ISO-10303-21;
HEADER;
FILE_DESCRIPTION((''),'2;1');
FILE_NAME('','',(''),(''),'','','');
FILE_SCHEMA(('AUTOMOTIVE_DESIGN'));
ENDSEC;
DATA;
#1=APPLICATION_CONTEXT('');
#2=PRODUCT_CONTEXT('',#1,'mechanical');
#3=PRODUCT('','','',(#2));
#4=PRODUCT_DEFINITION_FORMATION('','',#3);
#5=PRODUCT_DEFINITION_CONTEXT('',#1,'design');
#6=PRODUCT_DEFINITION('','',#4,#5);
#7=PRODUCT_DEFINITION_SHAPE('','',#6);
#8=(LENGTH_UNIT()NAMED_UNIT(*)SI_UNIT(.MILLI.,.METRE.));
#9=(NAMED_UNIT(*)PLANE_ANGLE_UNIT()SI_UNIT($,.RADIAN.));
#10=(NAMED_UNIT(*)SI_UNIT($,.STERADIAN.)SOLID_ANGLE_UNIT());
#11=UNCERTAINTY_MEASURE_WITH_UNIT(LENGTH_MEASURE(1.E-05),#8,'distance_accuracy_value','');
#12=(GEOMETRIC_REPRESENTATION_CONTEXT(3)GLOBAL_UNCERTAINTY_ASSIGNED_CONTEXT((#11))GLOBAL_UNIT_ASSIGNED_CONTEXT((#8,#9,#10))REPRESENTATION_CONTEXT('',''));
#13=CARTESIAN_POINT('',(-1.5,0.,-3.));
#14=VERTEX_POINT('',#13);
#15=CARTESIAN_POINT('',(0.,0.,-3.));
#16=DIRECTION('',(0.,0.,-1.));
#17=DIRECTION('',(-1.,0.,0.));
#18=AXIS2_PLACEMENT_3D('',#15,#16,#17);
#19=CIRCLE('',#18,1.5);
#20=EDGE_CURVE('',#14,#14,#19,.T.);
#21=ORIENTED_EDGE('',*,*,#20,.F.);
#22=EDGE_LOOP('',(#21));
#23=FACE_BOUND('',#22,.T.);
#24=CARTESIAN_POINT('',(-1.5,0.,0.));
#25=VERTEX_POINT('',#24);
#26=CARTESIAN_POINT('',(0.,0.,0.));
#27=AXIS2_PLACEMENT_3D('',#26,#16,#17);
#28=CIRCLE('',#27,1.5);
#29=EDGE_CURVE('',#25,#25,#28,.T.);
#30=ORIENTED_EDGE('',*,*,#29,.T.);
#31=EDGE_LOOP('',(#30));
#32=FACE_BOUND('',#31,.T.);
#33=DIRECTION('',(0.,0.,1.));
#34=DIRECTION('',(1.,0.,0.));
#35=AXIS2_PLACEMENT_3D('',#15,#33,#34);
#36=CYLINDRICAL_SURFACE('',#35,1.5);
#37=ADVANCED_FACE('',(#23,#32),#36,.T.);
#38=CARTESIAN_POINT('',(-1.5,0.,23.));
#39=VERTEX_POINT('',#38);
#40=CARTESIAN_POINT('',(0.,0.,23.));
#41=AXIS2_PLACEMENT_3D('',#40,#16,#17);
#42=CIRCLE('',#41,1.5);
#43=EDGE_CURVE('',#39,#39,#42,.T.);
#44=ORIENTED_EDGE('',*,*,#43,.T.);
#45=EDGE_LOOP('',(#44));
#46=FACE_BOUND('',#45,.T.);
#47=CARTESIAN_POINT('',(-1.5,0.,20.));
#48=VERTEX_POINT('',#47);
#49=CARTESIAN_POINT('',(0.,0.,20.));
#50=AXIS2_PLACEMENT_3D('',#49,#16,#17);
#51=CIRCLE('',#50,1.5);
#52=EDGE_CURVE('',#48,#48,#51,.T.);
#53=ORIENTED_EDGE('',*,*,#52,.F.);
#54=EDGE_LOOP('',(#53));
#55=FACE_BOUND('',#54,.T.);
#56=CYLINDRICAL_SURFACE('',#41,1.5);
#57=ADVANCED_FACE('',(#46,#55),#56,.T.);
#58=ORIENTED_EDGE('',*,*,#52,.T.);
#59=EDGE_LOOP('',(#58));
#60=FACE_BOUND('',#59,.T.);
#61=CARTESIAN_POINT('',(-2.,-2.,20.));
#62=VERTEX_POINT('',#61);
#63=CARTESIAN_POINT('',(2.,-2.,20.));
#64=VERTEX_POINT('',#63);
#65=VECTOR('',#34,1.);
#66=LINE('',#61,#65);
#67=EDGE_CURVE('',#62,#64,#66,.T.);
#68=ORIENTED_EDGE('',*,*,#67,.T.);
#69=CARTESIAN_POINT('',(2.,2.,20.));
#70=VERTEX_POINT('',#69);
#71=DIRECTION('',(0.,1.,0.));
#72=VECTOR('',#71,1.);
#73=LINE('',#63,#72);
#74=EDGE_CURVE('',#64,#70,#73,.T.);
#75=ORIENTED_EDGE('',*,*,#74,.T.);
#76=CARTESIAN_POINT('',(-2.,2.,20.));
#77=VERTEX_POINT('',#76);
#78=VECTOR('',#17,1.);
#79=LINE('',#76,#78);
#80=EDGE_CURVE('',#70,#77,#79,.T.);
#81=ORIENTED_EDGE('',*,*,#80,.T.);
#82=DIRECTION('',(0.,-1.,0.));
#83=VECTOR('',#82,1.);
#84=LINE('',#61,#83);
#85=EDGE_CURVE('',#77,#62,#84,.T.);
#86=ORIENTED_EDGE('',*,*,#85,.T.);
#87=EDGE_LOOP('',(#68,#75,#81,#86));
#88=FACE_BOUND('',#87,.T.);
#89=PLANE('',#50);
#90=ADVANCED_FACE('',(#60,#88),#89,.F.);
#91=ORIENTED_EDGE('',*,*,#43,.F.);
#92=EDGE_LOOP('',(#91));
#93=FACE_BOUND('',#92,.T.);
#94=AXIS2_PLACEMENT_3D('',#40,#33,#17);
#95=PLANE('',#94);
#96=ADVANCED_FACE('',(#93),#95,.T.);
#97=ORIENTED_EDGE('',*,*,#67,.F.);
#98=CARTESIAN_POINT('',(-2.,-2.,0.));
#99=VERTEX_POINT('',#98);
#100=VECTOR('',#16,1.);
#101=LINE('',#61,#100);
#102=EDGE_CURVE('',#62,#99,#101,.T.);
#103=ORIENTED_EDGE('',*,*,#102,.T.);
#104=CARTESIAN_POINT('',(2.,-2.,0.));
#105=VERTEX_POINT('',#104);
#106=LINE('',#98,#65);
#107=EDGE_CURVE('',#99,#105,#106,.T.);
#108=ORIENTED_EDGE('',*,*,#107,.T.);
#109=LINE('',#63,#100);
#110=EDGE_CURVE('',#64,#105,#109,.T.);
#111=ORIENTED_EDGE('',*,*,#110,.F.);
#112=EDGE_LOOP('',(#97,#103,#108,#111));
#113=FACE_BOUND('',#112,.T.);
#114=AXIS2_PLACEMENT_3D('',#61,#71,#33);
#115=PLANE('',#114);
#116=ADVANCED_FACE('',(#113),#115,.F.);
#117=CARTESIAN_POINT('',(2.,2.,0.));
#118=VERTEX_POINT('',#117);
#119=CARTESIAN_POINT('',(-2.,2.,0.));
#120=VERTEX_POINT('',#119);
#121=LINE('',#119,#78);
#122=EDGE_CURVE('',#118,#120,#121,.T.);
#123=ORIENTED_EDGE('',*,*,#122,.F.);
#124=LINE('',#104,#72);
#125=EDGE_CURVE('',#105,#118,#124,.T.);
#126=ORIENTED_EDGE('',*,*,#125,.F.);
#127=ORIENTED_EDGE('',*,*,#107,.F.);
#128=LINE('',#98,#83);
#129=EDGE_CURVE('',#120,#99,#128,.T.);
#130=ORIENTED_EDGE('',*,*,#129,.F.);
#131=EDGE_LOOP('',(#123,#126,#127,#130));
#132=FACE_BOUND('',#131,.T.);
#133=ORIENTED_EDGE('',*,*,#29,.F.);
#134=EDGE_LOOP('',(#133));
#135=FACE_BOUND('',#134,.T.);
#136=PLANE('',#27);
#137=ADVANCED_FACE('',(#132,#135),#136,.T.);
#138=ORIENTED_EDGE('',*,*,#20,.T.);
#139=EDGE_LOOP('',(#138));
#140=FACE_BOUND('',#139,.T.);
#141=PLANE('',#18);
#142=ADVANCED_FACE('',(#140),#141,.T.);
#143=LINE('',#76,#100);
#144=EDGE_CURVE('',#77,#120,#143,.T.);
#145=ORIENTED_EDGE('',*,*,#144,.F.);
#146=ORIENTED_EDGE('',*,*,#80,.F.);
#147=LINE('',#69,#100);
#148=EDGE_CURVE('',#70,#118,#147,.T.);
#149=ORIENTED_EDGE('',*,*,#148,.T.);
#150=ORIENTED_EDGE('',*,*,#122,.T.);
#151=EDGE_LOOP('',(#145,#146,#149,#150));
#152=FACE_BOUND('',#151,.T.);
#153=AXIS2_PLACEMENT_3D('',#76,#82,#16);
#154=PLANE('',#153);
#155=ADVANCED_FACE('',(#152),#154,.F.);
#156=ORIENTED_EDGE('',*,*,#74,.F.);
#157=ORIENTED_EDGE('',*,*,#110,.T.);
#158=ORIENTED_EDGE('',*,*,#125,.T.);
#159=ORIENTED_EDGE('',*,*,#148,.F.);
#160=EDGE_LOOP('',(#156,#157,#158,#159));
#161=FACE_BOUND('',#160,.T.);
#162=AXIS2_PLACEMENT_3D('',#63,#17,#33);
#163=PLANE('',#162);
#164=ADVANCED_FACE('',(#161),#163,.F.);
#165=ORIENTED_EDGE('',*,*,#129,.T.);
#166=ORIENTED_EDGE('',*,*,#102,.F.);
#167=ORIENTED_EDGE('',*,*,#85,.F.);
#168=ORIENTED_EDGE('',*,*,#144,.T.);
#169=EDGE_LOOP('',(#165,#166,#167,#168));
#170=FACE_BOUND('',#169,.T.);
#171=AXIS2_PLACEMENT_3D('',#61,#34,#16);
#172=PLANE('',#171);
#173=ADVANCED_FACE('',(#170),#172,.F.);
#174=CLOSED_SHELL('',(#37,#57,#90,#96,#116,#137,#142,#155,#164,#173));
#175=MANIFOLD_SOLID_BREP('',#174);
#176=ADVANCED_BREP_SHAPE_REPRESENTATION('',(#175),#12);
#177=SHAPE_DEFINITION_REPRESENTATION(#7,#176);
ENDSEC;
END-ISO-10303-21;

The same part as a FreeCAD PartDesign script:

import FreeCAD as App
import Part
import Sketcher
Q = App.Units.Quantity

doc = App.newDocument("Part")
params = doc.addObject("Spreadsheet::Sheet", "Params")
for row, (alias, value) in enumerate([
    ("sketch1_width", "4 mm"),
    ("pad1_length", "20 mm"),
    ("sketch2_diameter", "3 mm"),
    ("pad2_length", "3 mm"),
], start=1):
    params.set(f"A{row}", alias)
    params.set(f"B{row}", "=" + value)
    params.setAlias(f"B{row}", alias)

body = doc.addObject("PartDesign::Body", "Body")

sketch1 = doc.addObject("Sketcher::SketchObject", "Sketch")
body.addObject(sketch1)
sketch1.AttachmentSupport = (doc.XY_Plane, [""])
sketch1.MapMode = "FlatFace"
sketch1.addGeometry(Part.LineSegment(App.Vector(-2, 2, 0), App.Vector(-2, -2, 0)), False)
sketch1.addGeometry(Part.LineSegment(App.Vector(-2, -2, 0), App.Vector(2, -2, 0)), False)
sketch1.addGeometry(Part.LineSegment(App.Vector(2, -2, 0), App.Vector(2, 2, 0)), False)
sketch1.addGeometry(Part.LineSegment(App.Vector(2, 2, 0), App.Vector(-2, 2, 0)), False)
sketch1.addConstraint(Sketcher.Constraint("Coincident", 0, 2, 1, 1))
sketch1.addConstraint(Sketcher.Constraint("Coincident", 1, 2, 2, 1))
sketch1.addConstraint(Sketcher.Constraint("Coincident", 2, 2, 3, 1))
sketch1.addConstraint(Sketcher.Constraint("Coincident", 3, 2, 0, 1))
sketch1.addConstraint(Sketcher.Constraint("Vertical", 0))
sketch1.addConstraint(Sketcher.Constraint("Horizontal", 1))
sketch1.addConstraint(Sketcher.Constraint("Vertical", 2))
sketch1.addConstraint(Sketcher.Constraint("Horizontal", 3))
sketch1.addConstraint(Sketcher.Constraint("Symmetric", 0, 2, 2, 2, -1, 1))
sketch1.addConstraint(Sketcher.Constraint("Equal", 3, 0))
sketch1.addConstraint(Sketcher.Constraint("DistanceX", 1, 1, 1, 2, Q("4 mm")))
sketch1.setExpression("Constraints[10]", "Params.sketch1_width")
pad1 = doc.addObject("PartDesign::Pad", "Pad")
body.addObject(pad1)
pad1.Profile = sketch1
pad1.setExpression("Length", "Params.pad1_length")

sketch2 = doc.addObject("Sketcher::SketchObject", "Sketch001")
body.addObject(sketch2)
sketch2.AttachmentSupport = (doc.XY_Plane, [""])
sketch2.MapMode = "FlatFace"
sketch2.addGeometry(Part.Circle(App.Vector(0, 0, 0), App.Vector(0, 0, 1), 1.5), False)
sketch2.addConstraint(Sketcher.Constraint("Coincident", 0, 3, -1, 1))
sketch2.addConstraint(Sketcher.Constraint("Diameter", 0, Q("3 mm")))
sketch2.setExpression("Constraints[1]", "Params.sketch2_diameter")
pad2 = doc.addObject("PartDesign::Pad", "Pad001")
body.addObject(pad2)
pad2.Profile = sketch2
pad2.setExpression("Length", "Params.pad2_length")
pad2.Reversed = True
doc.recompute()

datumplane = doc.addObject("PartDesign::Plane", "DatumPlane")
body.addObject(datumplane)
datumplane.AttachmentSupport = (doc.XY_Plane, [""])
datumplane.MapMode = "FlatFace"
datumplane.AttachmentOffset = App.Placement(App.Vector(0, 0, 10), App.Rotation())
mirrored = doc.addObject("PartDesign::Mirrored", "Mirrored")
body.addObject(mirrored)
mirrored.Originals = [pad2]
mirrored.MirrorPlane = (datumplane, [""])
body.Tip = mirrored

doc.recompute()
